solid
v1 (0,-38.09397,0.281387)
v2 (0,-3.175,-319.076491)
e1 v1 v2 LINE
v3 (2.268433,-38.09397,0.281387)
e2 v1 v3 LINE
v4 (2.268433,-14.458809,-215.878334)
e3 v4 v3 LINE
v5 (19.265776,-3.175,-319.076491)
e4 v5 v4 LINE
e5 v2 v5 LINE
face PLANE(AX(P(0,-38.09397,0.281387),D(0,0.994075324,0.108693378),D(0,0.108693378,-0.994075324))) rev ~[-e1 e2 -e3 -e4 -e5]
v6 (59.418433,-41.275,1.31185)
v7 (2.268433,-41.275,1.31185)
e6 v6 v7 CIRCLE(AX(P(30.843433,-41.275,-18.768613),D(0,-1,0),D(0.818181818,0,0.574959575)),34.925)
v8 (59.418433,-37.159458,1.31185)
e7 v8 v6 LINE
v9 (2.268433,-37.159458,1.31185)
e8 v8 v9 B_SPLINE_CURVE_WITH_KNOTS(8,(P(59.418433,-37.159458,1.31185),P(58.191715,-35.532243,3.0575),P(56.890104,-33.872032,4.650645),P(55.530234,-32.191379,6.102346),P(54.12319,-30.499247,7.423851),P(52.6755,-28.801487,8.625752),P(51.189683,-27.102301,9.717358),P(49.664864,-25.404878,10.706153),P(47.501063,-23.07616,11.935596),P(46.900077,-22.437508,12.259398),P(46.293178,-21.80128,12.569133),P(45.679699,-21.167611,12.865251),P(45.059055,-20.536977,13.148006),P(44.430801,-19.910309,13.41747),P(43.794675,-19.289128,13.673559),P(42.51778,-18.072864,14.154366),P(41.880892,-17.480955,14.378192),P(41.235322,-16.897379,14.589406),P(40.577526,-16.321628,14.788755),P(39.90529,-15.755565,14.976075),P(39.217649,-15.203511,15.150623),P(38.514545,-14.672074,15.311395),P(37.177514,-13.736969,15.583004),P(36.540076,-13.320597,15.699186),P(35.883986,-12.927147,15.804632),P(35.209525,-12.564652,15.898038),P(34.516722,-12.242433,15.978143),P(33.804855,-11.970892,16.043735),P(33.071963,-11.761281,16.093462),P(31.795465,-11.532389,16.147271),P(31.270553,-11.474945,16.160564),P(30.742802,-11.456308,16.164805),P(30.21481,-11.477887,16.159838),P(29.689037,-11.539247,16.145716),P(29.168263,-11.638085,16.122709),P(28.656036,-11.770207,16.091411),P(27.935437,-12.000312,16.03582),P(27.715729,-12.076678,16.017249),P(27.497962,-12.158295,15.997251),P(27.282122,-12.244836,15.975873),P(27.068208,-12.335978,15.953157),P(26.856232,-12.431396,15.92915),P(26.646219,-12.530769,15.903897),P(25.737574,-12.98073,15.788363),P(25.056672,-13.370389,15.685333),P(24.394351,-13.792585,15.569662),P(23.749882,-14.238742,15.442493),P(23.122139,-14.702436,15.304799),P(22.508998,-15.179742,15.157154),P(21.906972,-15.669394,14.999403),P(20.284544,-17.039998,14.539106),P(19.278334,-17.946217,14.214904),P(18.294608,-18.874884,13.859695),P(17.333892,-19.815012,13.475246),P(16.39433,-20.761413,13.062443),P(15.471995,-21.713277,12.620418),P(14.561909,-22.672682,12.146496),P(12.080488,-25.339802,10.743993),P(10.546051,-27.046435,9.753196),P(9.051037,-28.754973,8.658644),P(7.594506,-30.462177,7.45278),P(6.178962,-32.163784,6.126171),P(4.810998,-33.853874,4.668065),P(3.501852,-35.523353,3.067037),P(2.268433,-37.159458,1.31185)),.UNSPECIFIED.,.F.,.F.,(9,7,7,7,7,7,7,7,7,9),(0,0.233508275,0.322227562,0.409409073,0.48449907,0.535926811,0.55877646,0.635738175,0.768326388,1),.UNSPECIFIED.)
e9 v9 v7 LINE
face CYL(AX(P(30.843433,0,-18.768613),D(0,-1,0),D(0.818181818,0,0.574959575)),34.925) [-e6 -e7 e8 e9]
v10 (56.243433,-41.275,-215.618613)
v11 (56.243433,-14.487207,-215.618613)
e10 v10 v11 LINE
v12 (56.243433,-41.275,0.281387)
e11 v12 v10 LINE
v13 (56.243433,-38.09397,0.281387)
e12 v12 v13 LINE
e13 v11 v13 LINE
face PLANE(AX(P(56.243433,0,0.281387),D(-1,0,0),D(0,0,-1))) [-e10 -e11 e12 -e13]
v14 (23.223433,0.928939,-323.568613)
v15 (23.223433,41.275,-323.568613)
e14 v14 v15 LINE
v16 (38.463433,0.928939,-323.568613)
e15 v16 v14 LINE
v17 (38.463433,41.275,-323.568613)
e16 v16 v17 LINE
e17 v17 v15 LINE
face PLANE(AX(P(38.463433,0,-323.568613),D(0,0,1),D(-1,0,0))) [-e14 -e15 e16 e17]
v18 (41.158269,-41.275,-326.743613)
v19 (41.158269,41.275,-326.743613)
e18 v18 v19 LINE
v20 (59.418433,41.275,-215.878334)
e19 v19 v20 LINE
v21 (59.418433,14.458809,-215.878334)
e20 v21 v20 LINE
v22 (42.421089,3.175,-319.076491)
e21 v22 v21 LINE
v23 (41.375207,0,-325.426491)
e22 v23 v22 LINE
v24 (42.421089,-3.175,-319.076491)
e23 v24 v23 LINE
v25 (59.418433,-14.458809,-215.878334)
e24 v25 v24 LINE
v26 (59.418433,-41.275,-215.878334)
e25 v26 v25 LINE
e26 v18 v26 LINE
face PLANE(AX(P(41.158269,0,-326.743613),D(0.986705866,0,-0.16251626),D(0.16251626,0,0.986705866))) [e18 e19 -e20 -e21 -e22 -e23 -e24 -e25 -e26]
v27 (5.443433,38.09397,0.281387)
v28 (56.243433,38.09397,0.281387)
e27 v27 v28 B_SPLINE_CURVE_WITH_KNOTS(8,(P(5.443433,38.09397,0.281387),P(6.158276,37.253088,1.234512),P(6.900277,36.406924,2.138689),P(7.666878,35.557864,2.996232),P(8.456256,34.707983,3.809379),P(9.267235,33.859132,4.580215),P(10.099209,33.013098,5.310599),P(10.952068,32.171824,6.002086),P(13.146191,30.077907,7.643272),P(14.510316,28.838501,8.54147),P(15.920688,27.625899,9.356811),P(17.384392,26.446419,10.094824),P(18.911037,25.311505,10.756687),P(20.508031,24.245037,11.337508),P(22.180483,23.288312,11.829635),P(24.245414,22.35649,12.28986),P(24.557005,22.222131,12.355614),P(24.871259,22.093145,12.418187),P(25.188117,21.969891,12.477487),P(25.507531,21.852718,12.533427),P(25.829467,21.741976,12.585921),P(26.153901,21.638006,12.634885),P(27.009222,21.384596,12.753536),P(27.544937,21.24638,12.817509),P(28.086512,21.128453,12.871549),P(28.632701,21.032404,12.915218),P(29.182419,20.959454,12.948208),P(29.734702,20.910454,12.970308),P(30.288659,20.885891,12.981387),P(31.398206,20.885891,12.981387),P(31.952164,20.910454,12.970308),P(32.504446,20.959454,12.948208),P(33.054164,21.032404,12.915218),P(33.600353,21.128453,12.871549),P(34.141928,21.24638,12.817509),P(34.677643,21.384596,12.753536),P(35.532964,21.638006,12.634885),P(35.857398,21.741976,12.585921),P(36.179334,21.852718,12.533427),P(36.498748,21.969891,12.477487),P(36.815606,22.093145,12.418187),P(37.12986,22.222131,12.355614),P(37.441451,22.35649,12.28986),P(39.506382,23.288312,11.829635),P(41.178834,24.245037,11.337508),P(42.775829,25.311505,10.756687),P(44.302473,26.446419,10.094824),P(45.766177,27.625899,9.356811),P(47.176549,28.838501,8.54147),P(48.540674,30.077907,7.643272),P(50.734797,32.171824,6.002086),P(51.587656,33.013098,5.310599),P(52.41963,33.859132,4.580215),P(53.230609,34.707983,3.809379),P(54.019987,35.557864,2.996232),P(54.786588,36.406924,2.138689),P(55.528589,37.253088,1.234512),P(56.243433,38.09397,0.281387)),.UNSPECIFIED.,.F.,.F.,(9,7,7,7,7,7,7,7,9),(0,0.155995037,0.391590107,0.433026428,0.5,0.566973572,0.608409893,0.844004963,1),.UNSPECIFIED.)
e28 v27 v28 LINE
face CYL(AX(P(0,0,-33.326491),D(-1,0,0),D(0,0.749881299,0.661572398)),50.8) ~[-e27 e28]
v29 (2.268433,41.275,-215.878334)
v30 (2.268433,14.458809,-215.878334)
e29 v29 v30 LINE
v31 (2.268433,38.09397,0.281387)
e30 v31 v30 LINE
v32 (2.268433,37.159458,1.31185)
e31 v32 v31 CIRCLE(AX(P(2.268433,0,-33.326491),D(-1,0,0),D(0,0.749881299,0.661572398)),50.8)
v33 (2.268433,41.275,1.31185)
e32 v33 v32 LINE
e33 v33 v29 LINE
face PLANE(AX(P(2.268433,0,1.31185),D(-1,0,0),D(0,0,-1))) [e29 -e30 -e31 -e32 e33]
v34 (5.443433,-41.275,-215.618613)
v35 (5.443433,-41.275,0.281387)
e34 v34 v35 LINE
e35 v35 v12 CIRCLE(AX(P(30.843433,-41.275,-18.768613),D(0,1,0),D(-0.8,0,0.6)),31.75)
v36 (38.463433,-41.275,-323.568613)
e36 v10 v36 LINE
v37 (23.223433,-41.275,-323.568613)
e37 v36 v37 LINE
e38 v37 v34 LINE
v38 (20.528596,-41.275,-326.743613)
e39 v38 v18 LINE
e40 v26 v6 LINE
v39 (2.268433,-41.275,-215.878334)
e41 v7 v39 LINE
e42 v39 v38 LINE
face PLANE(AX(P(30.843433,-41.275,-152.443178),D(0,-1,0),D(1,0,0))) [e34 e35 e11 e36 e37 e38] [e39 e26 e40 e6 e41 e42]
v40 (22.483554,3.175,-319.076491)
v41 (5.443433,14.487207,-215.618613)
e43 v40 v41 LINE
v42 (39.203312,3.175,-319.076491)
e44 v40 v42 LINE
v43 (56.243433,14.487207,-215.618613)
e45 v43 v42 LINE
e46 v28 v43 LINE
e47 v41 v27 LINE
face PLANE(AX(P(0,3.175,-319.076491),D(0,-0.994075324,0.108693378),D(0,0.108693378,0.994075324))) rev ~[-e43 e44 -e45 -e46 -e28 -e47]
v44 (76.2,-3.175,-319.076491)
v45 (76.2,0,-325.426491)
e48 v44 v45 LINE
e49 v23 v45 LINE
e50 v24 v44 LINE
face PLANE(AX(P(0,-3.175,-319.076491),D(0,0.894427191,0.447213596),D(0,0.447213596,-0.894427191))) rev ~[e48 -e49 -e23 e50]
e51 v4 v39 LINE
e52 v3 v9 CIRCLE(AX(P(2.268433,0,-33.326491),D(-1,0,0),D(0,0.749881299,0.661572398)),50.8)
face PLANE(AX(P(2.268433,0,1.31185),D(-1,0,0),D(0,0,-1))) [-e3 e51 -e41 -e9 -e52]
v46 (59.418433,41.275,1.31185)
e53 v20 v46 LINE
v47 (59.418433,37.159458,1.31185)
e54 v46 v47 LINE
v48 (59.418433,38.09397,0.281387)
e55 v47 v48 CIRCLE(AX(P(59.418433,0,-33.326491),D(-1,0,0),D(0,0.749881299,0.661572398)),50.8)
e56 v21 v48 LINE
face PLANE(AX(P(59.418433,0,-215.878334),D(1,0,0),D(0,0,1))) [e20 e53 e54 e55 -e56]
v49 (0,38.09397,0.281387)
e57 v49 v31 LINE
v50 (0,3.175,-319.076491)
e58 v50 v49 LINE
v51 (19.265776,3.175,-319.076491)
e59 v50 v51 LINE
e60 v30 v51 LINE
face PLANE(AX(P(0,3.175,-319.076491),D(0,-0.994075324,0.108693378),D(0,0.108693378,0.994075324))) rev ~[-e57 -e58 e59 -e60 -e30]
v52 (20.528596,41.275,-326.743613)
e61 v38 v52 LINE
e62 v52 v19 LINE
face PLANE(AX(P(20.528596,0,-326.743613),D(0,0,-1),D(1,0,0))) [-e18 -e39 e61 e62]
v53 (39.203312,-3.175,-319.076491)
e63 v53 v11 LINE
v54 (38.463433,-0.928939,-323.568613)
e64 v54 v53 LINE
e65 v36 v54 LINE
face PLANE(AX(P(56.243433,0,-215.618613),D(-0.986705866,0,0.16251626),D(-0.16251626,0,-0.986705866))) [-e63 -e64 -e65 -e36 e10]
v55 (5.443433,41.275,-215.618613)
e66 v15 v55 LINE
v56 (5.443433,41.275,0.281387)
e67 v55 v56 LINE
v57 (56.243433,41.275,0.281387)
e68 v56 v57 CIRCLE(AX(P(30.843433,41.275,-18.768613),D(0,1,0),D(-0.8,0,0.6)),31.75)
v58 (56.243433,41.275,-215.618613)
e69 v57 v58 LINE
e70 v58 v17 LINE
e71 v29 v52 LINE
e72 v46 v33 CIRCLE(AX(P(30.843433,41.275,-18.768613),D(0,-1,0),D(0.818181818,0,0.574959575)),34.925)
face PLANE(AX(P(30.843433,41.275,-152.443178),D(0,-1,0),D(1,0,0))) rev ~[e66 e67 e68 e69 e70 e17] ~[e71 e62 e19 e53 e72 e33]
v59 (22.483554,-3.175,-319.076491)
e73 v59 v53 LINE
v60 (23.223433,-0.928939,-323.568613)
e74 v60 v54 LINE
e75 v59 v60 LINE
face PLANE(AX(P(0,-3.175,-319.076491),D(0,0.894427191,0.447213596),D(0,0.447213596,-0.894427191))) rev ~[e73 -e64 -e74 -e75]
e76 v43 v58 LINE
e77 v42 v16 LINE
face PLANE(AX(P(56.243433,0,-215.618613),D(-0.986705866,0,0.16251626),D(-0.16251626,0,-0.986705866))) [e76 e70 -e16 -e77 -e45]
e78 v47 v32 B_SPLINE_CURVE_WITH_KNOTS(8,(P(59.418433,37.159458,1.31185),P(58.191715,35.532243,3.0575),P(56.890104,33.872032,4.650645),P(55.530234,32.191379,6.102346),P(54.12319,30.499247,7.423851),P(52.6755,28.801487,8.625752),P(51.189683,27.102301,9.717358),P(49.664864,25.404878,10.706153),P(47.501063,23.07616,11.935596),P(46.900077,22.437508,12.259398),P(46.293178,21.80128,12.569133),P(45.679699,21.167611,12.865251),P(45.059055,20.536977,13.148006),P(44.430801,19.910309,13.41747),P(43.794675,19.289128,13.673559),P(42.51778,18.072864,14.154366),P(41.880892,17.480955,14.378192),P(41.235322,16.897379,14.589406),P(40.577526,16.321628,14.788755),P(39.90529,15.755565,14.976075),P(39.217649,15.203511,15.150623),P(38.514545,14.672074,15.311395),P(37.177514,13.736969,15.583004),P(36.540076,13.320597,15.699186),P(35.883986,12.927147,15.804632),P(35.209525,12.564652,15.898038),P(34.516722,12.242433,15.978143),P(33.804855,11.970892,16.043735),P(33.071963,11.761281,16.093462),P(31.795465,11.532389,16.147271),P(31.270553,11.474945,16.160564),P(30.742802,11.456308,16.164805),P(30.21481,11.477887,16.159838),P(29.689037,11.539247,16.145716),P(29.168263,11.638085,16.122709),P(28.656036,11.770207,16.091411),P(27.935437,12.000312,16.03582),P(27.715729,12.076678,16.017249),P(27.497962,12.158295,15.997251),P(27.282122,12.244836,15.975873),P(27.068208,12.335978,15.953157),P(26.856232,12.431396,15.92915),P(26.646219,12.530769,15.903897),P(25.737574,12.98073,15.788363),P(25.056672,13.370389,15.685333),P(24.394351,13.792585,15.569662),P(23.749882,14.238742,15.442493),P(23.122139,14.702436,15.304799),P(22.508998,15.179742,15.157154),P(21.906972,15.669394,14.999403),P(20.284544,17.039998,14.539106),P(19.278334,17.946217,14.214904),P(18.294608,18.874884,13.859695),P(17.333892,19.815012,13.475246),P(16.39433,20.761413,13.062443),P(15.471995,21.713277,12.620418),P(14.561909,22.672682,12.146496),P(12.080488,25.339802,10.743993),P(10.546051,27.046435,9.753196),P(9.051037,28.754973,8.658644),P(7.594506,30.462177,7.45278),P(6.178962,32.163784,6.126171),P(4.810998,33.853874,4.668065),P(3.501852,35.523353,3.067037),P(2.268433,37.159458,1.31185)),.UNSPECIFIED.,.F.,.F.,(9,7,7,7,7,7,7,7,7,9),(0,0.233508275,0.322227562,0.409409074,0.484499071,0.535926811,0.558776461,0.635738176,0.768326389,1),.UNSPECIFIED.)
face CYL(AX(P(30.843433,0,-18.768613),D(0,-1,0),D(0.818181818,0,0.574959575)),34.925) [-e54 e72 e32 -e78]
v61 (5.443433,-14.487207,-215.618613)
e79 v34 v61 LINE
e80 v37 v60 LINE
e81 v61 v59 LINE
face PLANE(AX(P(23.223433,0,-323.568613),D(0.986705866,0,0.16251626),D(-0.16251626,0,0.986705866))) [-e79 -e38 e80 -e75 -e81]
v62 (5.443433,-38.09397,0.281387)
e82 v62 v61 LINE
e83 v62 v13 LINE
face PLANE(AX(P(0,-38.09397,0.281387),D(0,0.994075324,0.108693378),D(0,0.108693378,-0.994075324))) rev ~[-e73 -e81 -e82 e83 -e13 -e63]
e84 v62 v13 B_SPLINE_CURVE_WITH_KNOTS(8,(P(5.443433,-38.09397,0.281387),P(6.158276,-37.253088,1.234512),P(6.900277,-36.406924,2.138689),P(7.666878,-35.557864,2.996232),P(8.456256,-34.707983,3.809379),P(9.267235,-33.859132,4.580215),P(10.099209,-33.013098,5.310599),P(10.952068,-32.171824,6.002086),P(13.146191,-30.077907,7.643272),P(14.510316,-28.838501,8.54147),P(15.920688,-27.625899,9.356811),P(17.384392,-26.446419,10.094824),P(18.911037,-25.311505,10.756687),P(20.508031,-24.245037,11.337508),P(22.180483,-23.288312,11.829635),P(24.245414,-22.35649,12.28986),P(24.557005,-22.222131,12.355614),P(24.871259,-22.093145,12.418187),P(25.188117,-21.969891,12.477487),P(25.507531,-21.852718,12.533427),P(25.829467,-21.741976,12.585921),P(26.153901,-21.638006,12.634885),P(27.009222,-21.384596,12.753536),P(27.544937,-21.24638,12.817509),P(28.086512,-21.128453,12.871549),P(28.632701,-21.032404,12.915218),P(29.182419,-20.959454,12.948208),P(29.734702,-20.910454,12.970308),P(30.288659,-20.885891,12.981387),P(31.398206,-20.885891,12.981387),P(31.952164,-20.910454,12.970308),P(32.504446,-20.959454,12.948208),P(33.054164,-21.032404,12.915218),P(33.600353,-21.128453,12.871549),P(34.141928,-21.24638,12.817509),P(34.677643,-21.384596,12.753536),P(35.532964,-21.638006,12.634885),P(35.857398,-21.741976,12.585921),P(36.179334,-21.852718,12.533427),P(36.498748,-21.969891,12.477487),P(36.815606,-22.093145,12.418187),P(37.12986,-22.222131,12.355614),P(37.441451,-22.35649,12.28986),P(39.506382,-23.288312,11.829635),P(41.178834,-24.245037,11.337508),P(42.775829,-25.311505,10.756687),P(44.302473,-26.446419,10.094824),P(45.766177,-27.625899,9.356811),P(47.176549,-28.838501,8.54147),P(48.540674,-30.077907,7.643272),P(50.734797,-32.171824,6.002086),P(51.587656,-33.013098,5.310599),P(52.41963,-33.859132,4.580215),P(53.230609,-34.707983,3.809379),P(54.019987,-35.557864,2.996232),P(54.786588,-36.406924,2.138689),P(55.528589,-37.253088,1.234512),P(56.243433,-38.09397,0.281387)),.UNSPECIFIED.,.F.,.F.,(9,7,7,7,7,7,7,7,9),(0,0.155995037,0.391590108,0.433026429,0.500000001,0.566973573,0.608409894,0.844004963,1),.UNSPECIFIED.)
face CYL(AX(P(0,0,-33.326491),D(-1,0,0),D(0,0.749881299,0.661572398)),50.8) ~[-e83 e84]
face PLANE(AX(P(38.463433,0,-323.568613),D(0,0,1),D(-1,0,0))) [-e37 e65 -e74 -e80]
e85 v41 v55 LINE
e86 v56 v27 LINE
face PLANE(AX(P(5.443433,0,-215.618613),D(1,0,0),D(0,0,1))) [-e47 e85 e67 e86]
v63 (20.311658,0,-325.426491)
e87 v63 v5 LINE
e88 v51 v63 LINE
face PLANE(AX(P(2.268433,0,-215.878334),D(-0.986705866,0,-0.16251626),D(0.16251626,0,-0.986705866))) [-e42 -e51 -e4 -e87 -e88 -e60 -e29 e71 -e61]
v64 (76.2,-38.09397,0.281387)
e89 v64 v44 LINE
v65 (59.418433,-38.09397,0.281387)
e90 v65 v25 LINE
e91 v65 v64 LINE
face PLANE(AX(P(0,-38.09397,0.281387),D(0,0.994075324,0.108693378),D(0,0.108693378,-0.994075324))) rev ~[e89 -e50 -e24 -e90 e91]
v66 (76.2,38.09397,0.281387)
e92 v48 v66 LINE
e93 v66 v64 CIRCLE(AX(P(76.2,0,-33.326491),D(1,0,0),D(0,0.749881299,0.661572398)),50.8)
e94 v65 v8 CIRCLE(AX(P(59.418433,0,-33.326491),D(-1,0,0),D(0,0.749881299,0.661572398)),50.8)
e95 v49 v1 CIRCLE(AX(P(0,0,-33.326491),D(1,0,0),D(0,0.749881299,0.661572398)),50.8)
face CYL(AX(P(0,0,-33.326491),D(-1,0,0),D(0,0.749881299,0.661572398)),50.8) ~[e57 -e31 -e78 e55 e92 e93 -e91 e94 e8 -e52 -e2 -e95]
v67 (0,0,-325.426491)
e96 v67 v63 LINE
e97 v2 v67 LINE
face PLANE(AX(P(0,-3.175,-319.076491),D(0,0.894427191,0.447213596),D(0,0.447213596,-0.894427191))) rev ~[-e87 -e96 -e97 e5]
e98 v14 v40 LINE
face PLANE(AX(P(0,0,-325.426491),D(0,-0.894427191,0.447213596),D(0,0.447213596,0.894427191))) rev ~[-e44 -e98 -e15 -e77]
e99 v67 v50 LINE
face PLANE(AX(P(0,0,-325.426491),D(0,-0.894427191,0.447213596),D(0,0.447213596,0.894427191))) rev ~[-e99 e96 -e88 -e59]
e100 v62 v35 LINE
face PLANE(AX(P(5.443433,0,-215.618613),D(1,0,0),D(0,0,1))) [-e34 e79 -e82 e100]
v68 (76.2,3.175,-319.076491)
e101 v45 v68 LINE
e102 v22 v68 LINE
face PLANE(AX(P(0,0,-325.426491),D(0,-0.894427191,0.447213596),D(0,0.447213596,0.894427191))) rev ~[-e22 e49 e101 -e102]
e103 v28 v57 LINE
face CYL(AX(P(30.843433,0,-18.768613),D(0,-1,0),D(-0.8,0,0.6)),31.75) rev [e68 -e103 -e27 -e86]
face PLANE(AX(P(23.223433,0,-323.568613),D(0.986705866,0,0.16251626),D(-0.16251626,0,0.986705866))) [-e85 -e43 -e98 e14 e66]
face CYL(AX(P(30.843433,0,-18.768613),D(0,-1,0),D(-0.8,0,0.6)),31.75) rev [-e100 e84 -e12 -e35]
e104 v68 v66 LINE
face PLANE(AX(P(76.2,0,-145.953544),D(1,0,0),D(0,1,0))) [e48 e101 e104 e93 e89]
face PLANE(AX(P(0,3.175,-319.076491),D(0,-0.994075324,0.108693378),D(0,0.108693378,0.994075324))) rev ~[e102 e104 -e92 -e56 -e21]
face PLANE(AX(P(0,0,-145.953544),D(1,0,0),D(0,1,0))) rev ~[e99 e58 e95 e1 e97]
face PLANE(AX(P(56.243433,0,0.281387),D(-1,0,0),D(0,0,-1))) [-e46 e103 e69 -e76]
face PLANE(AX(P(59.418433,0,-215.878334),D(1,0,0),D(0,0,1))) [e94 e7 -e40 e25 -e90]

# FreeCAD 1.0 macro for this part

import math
import FreeCAD as App
import Part
import Sketcher
from FreeCAD import Vector
Q = App.Units.Quantity

doc = App.newDocument("Part")
body = doc.addObject("PartDesign::Body", "Body")

# Sketch on YZ plane
sketch1 = body.newObject("Sketcher::SketchObject", "Sketch")
sketch1.AttachmentSupport = (doc.getObject("YZ_Plane"), [""])
sketch1.MapMode = "FlatFace"
sketch1.addGeometry(Part.LineSegment(Vector(-38.09397, 0.281387, 0), Vector(-3.175, -319.076491, 0)), False)
sketch1.addGeometry(Part.LineSegment(Vector(-3.175, -319.076491, 0), Vector(0, -325.426491, 0)), False)
sketch1.addGeometry(Part.LineSegment(Vector(0, -325.426491, 0), Vector(3.175, -319.076491, 0)), False)
sketch1.addGeometry(Part.LineSegment(Vector(3.175, -319.076491, 0), Vector(38.09397, 0.281387, 0)), False)
sketch1.addGeometry(Part.ArcOfCircle(Part.Circle(Vector(0, -33.326491, 0), Vector(0, 0, 1), 50.8), math.radians(41.419903), math.radians(138.580097)), False)
sketch1.addConstraint(Sketcher.Constraint("Coincident", 0, 2, 1, 1))
sketch1.addConstraint(Sketcher.Constraint("Coincident", 1, 2, 2, 1))
sketch1.addConstraint(Sketcher.Constraint("Coincident", 2, 2, 3, 1))
sketch1.addConstraint(Sketcher.Constraint("Coincident", 3, 2, 4, 1))
sketch1.addConstraint(Sketcher.Constraint("Coincident", 4, 2, 0, 1))
sketch1.addConstraint(Sketcher.Constraint("Symmetric", 0, 2, 2, 2, -2))
sketch1.addConstraint(Sketcher.Constraint("Symmetric", 3, 2, 4, 2, -2))
sketch1.addConstraint(Sketcher.Constraint("PointOnObject", 1, 2, -2))
sketch1.addConstraint(Sketcher.Constraint("Radius", 4, Q("2 in")))
sketch1.addConstraint(Sketcher.Constraint("DistanceY", 1, 2, 4, 3, Q("11.5 in")))
sketch1.addConstraint(Sketcher.Constraint("Angle", 0, Q("-83.76 deg")))
sketch1.addConstraint(Sketcher.Constraint("DistanceY", 0, 2, 4, 3, Q("11.25 in")))
sketch1.addConstraint(Sketcher.Constraint("DistanceX", 0, 2, 2, 2, Q("0.25 in")))
sketch1.addConstraint(Sketcher.Constraint("DistanceY", 4, 3, -1, 1, Q("33.326491 mm")))
pad1 = body.newObject("PartDesign::Pad", "Pad")
pad1.Profile = sketch1
pad1.Length = Q("3 in")

# Sketch on XZ plane
sketch2 = body.newObject("Sketcher::SketchObject", "Sketch001")
sketch2.AttachmentSupport = (doc.getObject("XZ_Plane"), [""])
sketch2.MapMode = "FlatFace"
sketch2.addGeometry(Part.LineSegment(Vector(59.418433, -215.878334, 0), Vector(59.418433, 1.31185, 0)), False)
sketch2.addGeometry(Part.ArcOfCircle(Part.Circle(Vector(30.843433, -18.768613, 0), Vector(0, 0, 1), 34.925), math.radians(35.096801), math.radians(144.903199)), False)
sketch2.addGeometry(Part.LineSegment(Vector(2.268433, 1.31185, 0), Vector(2.268433, -215.878334, 0)), False)
sketch2.addGeometry(Part.LineSegment(Vector(2.268433, -215.878334, 0), Vector(20.528596, -326.743613, 0)), False)
sketch2.addGeometry(Part.LineSegment(Vector(20.528596, -326.743613, 0), Vector(41.158269, -326.743613, 0)), False)
sketch2.addGeometry(Part.LineSegment(Vector(41.158269, -326.743613, 0), Vector(59.418433, -215.878334, 0)), False)
sketch2.addGeometry(Part.LineSegment(Vector(5.443433, -215.618613, 0), Vector(5.443433, 0.281387, 0)), False)
sketch2.addGeometry(Part.ArcOfCircle(Part.Circle(Vector(30.843433, -18.768613, 0), Vector(0, 0, 1), 31.75), math.radians(36.869898), math.radians(143.130102)), False)
sketch2.addGeometry(Part.LineSegment(Vector(56.243433, 0.281387, 0), Vector(56.243433, -215.618613, 0)), False)
sketch2.addGeometry(Part.LineSegment(Vector(56.243433, -215.618613, 0), Vector(38.463433, -323.568613, 0)), False)
sketch2.addGeometry(Part.LineSegment(Vector(38.463433, -323.568613, 0), Vector(23.223433, -323.568613, 0)), False)
sketch2.addGeometry(Part.LineSegment(Vector(23.223433, -323.568613, 0), Vector(5.443433, -215.618613, 0)), False)
sketch2.addConstraint(Sketcher.Constraint("Coincident", 0, 2, 1, 1))
sketch2.addConstraint(Sketcher.Constraint("Coincident", 1, 2, 2, 1))
sketch2.addConstraint(Sketcher.Constraint("Coincident", 2, 2, 3, 1))
sketch2.addConstraint(Sketcher.Constraint("Coincident", 3, 2, 4, 1))
sketch2.addConstraint(Sketcher.Constraint("Coincident", 4, 2, 5, 1))
sketch2.addConstraint(Sketcher.Constraint("Coincident", 5, 2, 0, 1))
sketch2.addConstraint(Sketcher.Constraint("Coincident", 6, 2, 7, 2))
sketch2.addConstraint(Sketcher.Constraint("Coincident", 7, 1, 8, 1))
sketch2.addConstraint(Sketcher.Constraint("Coincident", 8, 2, 9, 1))
sketch2.addConstraint(Sketcher.Constraint("Coincident", 9, 2, 10, 1))
sketch2.addConstraint(Sketcher.Constraint("Coincident", 10, 2, 11, 1))
sketch2.addConstraint(Sketcher.Constraint("Coincident", 11, 2, 6, 1))
sketch2.addConstraint(Sketcher.Constraint("Vertical", 0))
sketch2.addConstraint(Sketcher.Constraint("Vertical", 2))
sketch2.addConstraint(Sketcher.Constraint("Horizontal", 4))
sketch2.addConstraint(Sketcher.Constraint("Vertical", 6))
sketch2.addConstraint(Sketcher.Constraint("Vertical", 8))
sketch2.addConstraint(Sketcher.Constraint("Horizontal", 10))
sketch2.addConstraint(Sketcher.Constraint("Coincident", 7, 3, 1, 3))
sketch2.addConstraint(Sketcher.Constraint("Parallel", 5, 9))
sketch2.addConstraint(Sketcher.Constraint("Parallel", 3, 11))
sketch2.addConstraint(Sketcher.Constraint("Horizontal", 0, 2, 1, 2))
sketch2.addConstraint(Sketcher.Constraint("Horizontal", 2, 2, 5, 2))
sketch2.addConstraint(Sketcher.Constraint("Horizontal", 6, 2, 7, 1))
sketch2.addConstraint(Sketcher.Constraint("Horizontal", 8, 2, 11, 2))
sketch2.addConstraint(Sketcher.Constraint("Equal", 3, 5))
sketch2.addConstraint(Sketcher.Constraint("Radius", 7, Q("1.25 in")))
sketch2.addConstraint(Sketcher.Constraint("DistanceX", 10, 2, 10, 1, Q("0.6 in")))
sketch2.addConstraint(Sketcher.Constraint("DistanceY", 6, 1, 6, 2, Q("8.5 in")))
sketch2.addConstraint(Sketcher.Constraint("Radius", 1, Q("1.375 in")))
sketch2.addConstraint(Sketcher.Constraint("DistanceX", 6, 2, 1, 3, Q("1 in")))
sketch2.addConstraint(Sketcher.Constraint("DistanceX", 1, 2, 0, 2, Q("2.25 in")))
sketch2.addConstraint(Sketcher.Constraint("DistanceY", 9, 2, 8, 2, Q("4.25 in")))
sketch2.addConstraint(Sketcher.Constraint("DistanceY", 3, 2, 1, 3, Q("12.125 in")))
sketch2.addConstraint(Sketcher.Constraint("DistanceX", 4, 1, 4, 2, Q("20.629673 mm")))
sketch2.addConstraint(Sketcher.Constraint("DistanceY", -1, 1, 0, 2, Q("1.31185 mm")))
sketch2.addConstraint(Sketcher.Constraint("DistanceX", -1, 1, 4, 2, Q("41.158269 mm")))
pad2 = body.newObject("PartDesign::Pad", "Pad001")
pad2.Profile = sketch2
pad2.Length = Q("3.25 in")
pad2.Midplane = True

doc.recompute()
